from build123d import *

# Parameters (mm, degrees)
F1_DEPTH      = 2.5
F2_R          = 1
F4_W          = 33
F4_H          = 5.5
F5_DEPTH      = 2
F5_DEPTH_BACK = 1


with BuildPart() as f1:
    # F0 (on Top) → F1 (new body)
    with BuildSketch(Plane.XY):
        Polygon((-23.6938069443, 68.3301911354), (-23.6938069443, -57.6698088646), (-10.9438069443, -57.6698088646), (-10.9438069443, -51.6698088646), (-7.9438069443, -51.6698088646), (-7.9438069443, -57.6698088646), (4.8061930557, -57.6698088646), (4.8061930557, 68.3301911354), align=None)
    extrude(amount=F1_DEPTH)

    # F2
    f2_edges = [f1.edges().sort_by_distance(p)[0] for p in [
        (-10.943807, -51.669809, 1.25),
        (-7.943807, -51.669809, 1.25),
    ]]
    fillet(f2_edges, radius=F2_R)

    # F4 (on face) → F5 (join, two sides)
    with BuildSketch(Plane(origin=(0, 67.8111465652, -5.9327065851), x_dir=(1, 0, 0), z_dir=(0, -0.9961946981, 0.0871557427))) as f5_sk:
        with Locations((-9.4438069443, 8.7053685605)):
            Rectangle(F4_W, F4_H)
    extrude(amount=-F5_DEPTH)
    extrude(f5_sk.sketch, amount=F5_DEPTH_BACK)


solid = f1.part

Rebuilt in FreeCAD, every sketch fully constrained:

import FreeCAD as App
import Part
import Sketcher


def edges_at(feature, points):
    """Names of the edges that pass closest to the given points."""
    edges = feature.Shape.Edges
    near = lambda p: min(range(len(edges)), key=lambda i: edges[i].distToShape(Part.Vertex(*p))[0])
    return sorted({f"Edge{near(p) + 1}" for p in points})

doc = App.newDocument("Part")
params = doc.addObject("Spreadsheet::Sheet", "Params")
for row, (alias, value) in enumerate([
    ("sketch1_width", "3 mm"),
    ("sketch1_height", "126 mm"),
    ("sketch1_height2", "6 mm"),
    ("sketch1_width2", "28.5 mm"),
    ("pad1_length", "2.5 mm"),
    ("fillet_radius", "1 mm"),
    ("sketch2_width", "33 mm"),
    ("sketch2_height", "5.5 mm"),
    ("pad2_length", "2 mm"),
    ("pad2_length2", "1 mm"),
], start=1):
    params.set(f"A{row}", alias)
    params.set(f"B{row}", "=" + value)
    params.setAlias(f"B{row}", alias)

body = doc.addObject("PartDesign::Body", "Body")

# Sketch on XY plane
sketch1 = body.newObject("Sketcher::SketchObject", "Sketch")
sketch1.AttachmentSupport = (doc.getObject("XY_Plane"), [""])
sketch1.MapMode = "FlatFace"
sketch1.addGeometry(Part.LineSegment(App.Vector(-23.693807, 68.330191, 0), App.Vector(-23.693807, -57.669809, 0)), False)
sketch1.addGeometry(Part.LineSegment(App.Vector(-23.693807, -57.669809, 0), App.Vector(-10.943807, -57.669809, 0)), False)
sketch1.addGeometry(Part.LineSegment(App.Vector(-10.943807, -57.669809, 0), App.Vector(-10.943807, -51.669809, 0)), False)
sketch1.addGeometry(Part.LineSegment(App.Vector(-10.943807, -51.669809, 0), App.Vector(-7.943807, -51.669809, 0)), False)
sketch1.addGeometry(Part.LineSegment(App.Vector(-7.943807, -51.669809, 0), App.Vector(-7.943807, -57.669809, 0)), False)
sketch1.addGeometry(Part.LineSegment(App.Vector(-7.943807, -57.669809, 0), App.Vector(4.806193, -57.669809, 0)), False)
sketch1.addGeometry(Part.LineSegment(App.Vector(4.806193, -57.669809, 0), App.Vector(4.806193, 68.330191, 0)), False)
sketch1.addGeometry(Part.LineSegment(App.Vector(4.806193, 68.330191, 0), App.Vector(-23.693807, 68.330191, 0)), False)
sketch1.addConstraint(Sketcher.Constraint("Coincident", 0, 2, 1, 1))
sketch1.addConstraint(Sketcher.Constraint("Coincident", 1, 2, 2, 1))
sketch1.addConstraint(Sketcher.Constraint("Coincident", 2, 2, 3, 1))
sketch1.addConstraint(Sketcher.Constraint("Coincident", 3, 2, 4, 1))
sketch1.addConstraint(Sketcher.Constraint("Coincident", 4, 2, 5, 1))
sketch1.addConstraint(Sketcher.Constraint("Coincident", 5, 2, 6, 1))
sketch1.addConstraint(Sketcher.Constraint("Coincident", 6, 2, 7, 1))
sketch1.addConstraint(Sketcher.Constraint("Coincident", 7, 2, 0, 1))
sketch1.addConstraint(Sketcher.Constraint("Vertical", 0))
sketch1.addConstraint(Sketcher.Constraint("Horizontal", 1))
sketch1.addConstraint(Sketcher.Constraint("Vertical", 2))
sketch1.addConstraint(Sketcher.Constraint("Horizontal", 3))
sketch1.addConstraint(Sketcher.Constraint("Vertical", 4))
sketch1.addConstraint(Sketcher.Constraint("Horizontal", 5))
sketch1.addConstraint(Sketcher.Constraint("Vertical", 6))
sketch1.addConstraint(Sketcher.Constraint("Horizontal", 7))
sketch1.addConstraint(Sketcher.Constraint("Horizontal", 1, 2, 4, 2))
sketch1.addConstraint(Sketcher.Constraint("Equal", 1, 5))
sketch1.addConstraint(Sketcher.Constraint("DistanceX", 3, 1, 3, 2, 3.0))
sketch1.addConstraint(Sketcher.Constraint("DistanceY", 0, 2, 0, 1, 126.0))
sketch1.addConstraint(Sketcher.Constraint("DistanceY", 2, 1, 2, 2, 6.0))
sketch1.addConstraint(Sketcher.Constraint("DistanceX", 7, 2, 7, 1, 28.5))
sketch1.addConstraint(Sketcher.Constraint("DistanceY", 0, 2, -1, 1, 57.669809))
sketch1.addConstraint(Sketcher.Constraint("DistanceX", 0, 2, -1, 1, 23.693807))
sketch1.setExpression("Constraints[18]", "Params.sketch1_width")
sketch1.setExpression("Constraints[19]", "Params.sketch1_height")
sketch1.setExpression("Constraints[20]", "Params.sketch1_height2")
sketch1.setExpression("Constraints[21]", "Params.sketch1_width2")
pad1 = body.newObject("PartDesign::Pad", "Pad")
pad1.Profile = sketch1
pad1.setExpression("Length", "Params.pad1_length")
doc.recompute()

fillet = body.newObject("PartDesign::Fillet", "Fillet")
fillet.Base = (pad1, edges_at(pad1, [(-10.944, -51.67, 1.25), (-7.944, -51.67, 1.25)]))
fillet.setExpression("Radius", "Params.fillet_radius")

# Sketch on an angled plane
sketch2 = body.newObject("Sketcher::SketchObject", "Sketch001")
sketch2.Placement = App.Placement(App.Vector(0, 67.811147, -5.932707), App.Rotation(App.Vector(1, 0, 0), App.Vector(0, 0.087155743, 0.996194698), App.Vector(0, -0.996194698, 0.087155743), "ZXY"))
sketch2.addGeometry(Part.LineSegment(App.Vector(-25.943807, 11.455369, 0), App.Vector(-25.943807, 5.955369, 0)), False)
sketch2.addGeometry(Part.LineSegment(App.Vector(-25.943807, 5.955369, 0), App.Vector(7.056193, 5.955369, 0)), False)
sketch2.addGeometry(Part.LineSegment(App.Vector(7.056193, 5.955369, 0), App.Vector(7.056193, 11.455369, 0)), False)
sketch2.addGeometry(Part.LineSegment(App.Vector(7.056193, 11.455369, 0), App.Vector(-25.943807, 11.455369, 0)), False)
sketch2.addConstraint(Sketcher.Constraint("Coincident", 0, 2, 1, 1))
sketch2.addConstraint(Sketcher.Constraint("Coincident", 1, 2, 2, 1))
sketch2.addConstraint(Sketcher.Constraint("Coincident", 2, 2, 3, 1))
sketch2.addConstraint(Sketcher.Constraint("Coincident", 3, 2, 0, 1))
sketch2.addConstraint(Sketcher.Constraint("Vertical", 0))
sketch2.addConstraint(Sketcher.Constraint("Horizontal", 1))
sketch2.addConstraint(Sketcher.Constraint("Vertical", 2))
sketch2.addConstraint(Sketcher.Constraint("Horizontal", 3))
sketch2.addConstraint(Sketcher.Constraint("DistanceX", 1, 1, 1, 2, 33.0))
sketch2.addConstraint(Sketcher.Constraint("DistanceY", 0, 2, 0, 1, 5.5))
sketch2.addConstraint(Sketcher.Constraint("DistanceY", -1, 1, 0, 2, 5.955369))
sketch2.addConstraint(Sketcher.Constraint("DistanceX", 0, 2, -1, 1, 25.943807))
sketch2.setExpression("Constraints[8]", "Params.sketch2_width")
sketch2.setExpression("Constraints[9]", "Params.sketch2_height")
pad2 = body.newObject("PartDesign::Pad", "Pad001")
pad2.Profile = sketch2
pad2.Type = "TwoLengths"
pad2.setExpression("Length", "Params.pad2_length")
pad2.setExpression("Length2", "Params.pad2_length2")
pad2.Reversed = True

doc.recompute()
